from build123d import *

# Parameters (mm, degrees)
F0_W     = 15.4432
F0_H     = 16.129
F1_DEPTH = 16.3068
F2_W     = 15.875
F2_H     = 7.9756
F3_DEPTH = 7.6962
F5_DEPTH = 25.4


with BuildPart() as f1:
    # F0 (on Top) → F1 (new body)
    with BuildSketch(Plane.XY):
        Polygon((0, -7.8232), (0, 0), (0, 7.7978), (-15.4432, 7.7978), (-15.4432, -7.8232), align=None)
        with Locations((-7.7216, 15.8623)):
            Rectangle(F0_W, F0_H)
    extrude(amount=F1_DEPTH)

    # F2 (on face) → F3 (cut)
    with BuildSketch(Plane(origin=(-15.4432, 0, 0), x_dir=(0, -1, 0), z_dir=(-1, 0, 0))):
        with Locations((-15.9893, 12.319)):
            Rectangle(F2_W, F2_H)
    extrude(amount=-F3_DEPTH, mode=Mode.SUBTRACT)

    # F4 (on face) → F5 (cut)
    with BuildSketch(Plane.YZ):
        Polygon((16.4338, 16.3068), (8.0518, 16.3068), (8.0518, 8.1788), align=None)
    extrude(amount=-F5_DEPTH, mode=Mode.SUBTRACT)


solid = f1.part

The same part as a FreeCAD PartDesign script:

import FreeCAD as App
import Part
import Sketcher

V = App.Vector
Q = App.Units.Quantity


def add_polygon(sketch, points):
    """Adds a closed chain of lines whose ends are joined by coincident constraints."""
    first, n = sketch.GeometryCount, len(points)
    for a, b in zip(points, points[1:] + points[:1]):
        sketch.addGeometry(Part.LineSegment(App.Vector(*a, 0), App.Vector(*b, 0)), False)
    for i in range(n):
        sketch.addConstraint(Sketcher.Constraint("Coincident", first + i, 2, first + (i + 1) % n, 1))

doc = App.newDocument("Part")
params = doc.addObject("Spreadsheet::Sheet", "Params")
for row, (alias, value) in enumerate([
    ("sketch1_height", "1.25 in"),
    ("sketch1_width", "0.608 in"),
    ("pad1_length", "0.642 in"),
    ("sketch2_width", "0.625 in"),
    ("sketch2_height", "0.314 in"),
    ("pocket1_length", "0.303 in"),
    ("sketch3_width", "0.33 in"),
    ("sketch3_height", "0.32 in"),
    ("pocket2_length", "1 in"),
], start=1):
    params.set(f"A{row}", alias)
    params.set(f"B{row}", "=" + value)
    params.setAlias(f"B{row}", alias)

body = doc.addObject("PartDesign::Body", "Body")

sketch1 = body.newObject("Sketcher::SketchObject", "Sketch")
sketch1.AttachmentSupport = (doc.getObject("XY_Plane"), [""])
sketch1.MapMode = "FlatFace"
add_polygon(sketch1, [(0, -7.8232), (0, 23.9268), (-15.4432, 23.9268), (-15.4432, -7.8232)])
sketch1.addConstraint([
    Sketcher.Constraint("Vertical", 0),
    Sketcher.Constraint("Horizontal", 1),
    Sketcher.Constraint("Vertical", 2),
    Sketcher.Constraint("Horizontal", 3),
    Sketcher.Constraint("PointOnObject", 0, 2, -2),
    Sketcher.Constraint("DistanceY", 0, 1, 0, 2, Q("1.25 in")),
    Sketcher.Constraint("DistanceX", 1, 2, 1, 1, Q("0.608 in")),
    Sketcher.Constraint("DistanceY", -1, 1, 0, 2, Q("0.942 in")),
])
sketch1.setExpression("Constraints[9]", "Params.sketch1_height")
sketch1.setExpression("Constraints[10]", "Params.sketch1_width")
pad1 = body.newObject("PartDesign::Pad", "Pad")
pad1.Profile = sketch1
pad1.setExpression("Length", "Params.pad1_length")

sketch2 = body.newObject("Sketcher::SketchObject", "Sketch001")
sketch2.AttachmentSupport = (doc.getObject("YZ_Plane"), [""])
sketch2.MapMode = "FlatFace"
sketch2.AttachmentOffset = App.Placement(V(0, 0, -0.608 * 25.4), App.Rotation())
add_polygon(sketch2, [(23.9268, 16.3068), (23.9268, 8.3312), (8.0518, 8.3312), (8.0518, 16.3068)])
sketch2.addConstraint([
    Sketcher.Constraint("Vertical", 0),
    Sketcher.Constraint("Horizontal", 1),
    Sketcher.Constraint("Vertical", 2),
    Sketcher.Constraint("Horizontal", 3),
    Sketcher.Constraint("DistanceX", 1, 2, 1, 1, Q("0.625 in")),
    Sketcher.Constraint("DistanceY", 0, 2, 0, 1, Q("0.314 in")),
    Sketcher.Constraint("DistanceX", -1, 1, 0, 2, Q("0.942 in")),
    Sketcher.Constraint("DistanceY", -1, 1, 0, 2, Q("0.328 in")),
])
sketch2.setExpression("Constraints[8]", "Params.sketch2_width")
sketch2.setExpression("Constraints[9]", "Params.sketch2_height")
pocket1 = body.newObject("PartDesign::Pocket", "Pocket")
pocket1.Profile = sketch2
pocket1.setExpression("Length", "Params.pocket1_length")
pocket1.Reversed = True

sketch3 = body.newObject("Sketcher::SketchObject", "Sketch002")
sketch3.AttachmentSupport = (doc.getObject("YZ_Plane"), [""])
sketch3.MapMode = "FlatFace"
add_polygon(sketch3, [(16.4338, 16.3068), (8.0518, 16.3068), (8.0518, 8.1788)])
sketch3.addConstraint([
    Sketcher.Constraint("Horizontal", 0),
    Sketcher.Constraint("Vertical", 1),
    Sketcher.Constraint("DistanceX", 0, 2, 0, 1, Q("0.33 in")),
    Sketcher.Constraint("DistanceY", 1, 2, 1, 1, Q("0.32 in")),
    Sketcher.Constraint("DistanceX", -1, 1, 0, 2, Q("0.317 in")),
    Sketcher.Constraint("DistanceY", -1, 1, 0, 2, Q("0.642 in")),
])
sketch3.setExpression("Constraints[5]", "Params.sketch3_width")
sketch3.setExpression("Constraints[6]", "Params.sketch3_height")
pocket2 = body.newObject("PartDesign::Pocket", "Pocket001")
pocket2.Profile = sketch3
pocket2.setExpression("Length", "Params.pocket2_length")

doc.recompute()
